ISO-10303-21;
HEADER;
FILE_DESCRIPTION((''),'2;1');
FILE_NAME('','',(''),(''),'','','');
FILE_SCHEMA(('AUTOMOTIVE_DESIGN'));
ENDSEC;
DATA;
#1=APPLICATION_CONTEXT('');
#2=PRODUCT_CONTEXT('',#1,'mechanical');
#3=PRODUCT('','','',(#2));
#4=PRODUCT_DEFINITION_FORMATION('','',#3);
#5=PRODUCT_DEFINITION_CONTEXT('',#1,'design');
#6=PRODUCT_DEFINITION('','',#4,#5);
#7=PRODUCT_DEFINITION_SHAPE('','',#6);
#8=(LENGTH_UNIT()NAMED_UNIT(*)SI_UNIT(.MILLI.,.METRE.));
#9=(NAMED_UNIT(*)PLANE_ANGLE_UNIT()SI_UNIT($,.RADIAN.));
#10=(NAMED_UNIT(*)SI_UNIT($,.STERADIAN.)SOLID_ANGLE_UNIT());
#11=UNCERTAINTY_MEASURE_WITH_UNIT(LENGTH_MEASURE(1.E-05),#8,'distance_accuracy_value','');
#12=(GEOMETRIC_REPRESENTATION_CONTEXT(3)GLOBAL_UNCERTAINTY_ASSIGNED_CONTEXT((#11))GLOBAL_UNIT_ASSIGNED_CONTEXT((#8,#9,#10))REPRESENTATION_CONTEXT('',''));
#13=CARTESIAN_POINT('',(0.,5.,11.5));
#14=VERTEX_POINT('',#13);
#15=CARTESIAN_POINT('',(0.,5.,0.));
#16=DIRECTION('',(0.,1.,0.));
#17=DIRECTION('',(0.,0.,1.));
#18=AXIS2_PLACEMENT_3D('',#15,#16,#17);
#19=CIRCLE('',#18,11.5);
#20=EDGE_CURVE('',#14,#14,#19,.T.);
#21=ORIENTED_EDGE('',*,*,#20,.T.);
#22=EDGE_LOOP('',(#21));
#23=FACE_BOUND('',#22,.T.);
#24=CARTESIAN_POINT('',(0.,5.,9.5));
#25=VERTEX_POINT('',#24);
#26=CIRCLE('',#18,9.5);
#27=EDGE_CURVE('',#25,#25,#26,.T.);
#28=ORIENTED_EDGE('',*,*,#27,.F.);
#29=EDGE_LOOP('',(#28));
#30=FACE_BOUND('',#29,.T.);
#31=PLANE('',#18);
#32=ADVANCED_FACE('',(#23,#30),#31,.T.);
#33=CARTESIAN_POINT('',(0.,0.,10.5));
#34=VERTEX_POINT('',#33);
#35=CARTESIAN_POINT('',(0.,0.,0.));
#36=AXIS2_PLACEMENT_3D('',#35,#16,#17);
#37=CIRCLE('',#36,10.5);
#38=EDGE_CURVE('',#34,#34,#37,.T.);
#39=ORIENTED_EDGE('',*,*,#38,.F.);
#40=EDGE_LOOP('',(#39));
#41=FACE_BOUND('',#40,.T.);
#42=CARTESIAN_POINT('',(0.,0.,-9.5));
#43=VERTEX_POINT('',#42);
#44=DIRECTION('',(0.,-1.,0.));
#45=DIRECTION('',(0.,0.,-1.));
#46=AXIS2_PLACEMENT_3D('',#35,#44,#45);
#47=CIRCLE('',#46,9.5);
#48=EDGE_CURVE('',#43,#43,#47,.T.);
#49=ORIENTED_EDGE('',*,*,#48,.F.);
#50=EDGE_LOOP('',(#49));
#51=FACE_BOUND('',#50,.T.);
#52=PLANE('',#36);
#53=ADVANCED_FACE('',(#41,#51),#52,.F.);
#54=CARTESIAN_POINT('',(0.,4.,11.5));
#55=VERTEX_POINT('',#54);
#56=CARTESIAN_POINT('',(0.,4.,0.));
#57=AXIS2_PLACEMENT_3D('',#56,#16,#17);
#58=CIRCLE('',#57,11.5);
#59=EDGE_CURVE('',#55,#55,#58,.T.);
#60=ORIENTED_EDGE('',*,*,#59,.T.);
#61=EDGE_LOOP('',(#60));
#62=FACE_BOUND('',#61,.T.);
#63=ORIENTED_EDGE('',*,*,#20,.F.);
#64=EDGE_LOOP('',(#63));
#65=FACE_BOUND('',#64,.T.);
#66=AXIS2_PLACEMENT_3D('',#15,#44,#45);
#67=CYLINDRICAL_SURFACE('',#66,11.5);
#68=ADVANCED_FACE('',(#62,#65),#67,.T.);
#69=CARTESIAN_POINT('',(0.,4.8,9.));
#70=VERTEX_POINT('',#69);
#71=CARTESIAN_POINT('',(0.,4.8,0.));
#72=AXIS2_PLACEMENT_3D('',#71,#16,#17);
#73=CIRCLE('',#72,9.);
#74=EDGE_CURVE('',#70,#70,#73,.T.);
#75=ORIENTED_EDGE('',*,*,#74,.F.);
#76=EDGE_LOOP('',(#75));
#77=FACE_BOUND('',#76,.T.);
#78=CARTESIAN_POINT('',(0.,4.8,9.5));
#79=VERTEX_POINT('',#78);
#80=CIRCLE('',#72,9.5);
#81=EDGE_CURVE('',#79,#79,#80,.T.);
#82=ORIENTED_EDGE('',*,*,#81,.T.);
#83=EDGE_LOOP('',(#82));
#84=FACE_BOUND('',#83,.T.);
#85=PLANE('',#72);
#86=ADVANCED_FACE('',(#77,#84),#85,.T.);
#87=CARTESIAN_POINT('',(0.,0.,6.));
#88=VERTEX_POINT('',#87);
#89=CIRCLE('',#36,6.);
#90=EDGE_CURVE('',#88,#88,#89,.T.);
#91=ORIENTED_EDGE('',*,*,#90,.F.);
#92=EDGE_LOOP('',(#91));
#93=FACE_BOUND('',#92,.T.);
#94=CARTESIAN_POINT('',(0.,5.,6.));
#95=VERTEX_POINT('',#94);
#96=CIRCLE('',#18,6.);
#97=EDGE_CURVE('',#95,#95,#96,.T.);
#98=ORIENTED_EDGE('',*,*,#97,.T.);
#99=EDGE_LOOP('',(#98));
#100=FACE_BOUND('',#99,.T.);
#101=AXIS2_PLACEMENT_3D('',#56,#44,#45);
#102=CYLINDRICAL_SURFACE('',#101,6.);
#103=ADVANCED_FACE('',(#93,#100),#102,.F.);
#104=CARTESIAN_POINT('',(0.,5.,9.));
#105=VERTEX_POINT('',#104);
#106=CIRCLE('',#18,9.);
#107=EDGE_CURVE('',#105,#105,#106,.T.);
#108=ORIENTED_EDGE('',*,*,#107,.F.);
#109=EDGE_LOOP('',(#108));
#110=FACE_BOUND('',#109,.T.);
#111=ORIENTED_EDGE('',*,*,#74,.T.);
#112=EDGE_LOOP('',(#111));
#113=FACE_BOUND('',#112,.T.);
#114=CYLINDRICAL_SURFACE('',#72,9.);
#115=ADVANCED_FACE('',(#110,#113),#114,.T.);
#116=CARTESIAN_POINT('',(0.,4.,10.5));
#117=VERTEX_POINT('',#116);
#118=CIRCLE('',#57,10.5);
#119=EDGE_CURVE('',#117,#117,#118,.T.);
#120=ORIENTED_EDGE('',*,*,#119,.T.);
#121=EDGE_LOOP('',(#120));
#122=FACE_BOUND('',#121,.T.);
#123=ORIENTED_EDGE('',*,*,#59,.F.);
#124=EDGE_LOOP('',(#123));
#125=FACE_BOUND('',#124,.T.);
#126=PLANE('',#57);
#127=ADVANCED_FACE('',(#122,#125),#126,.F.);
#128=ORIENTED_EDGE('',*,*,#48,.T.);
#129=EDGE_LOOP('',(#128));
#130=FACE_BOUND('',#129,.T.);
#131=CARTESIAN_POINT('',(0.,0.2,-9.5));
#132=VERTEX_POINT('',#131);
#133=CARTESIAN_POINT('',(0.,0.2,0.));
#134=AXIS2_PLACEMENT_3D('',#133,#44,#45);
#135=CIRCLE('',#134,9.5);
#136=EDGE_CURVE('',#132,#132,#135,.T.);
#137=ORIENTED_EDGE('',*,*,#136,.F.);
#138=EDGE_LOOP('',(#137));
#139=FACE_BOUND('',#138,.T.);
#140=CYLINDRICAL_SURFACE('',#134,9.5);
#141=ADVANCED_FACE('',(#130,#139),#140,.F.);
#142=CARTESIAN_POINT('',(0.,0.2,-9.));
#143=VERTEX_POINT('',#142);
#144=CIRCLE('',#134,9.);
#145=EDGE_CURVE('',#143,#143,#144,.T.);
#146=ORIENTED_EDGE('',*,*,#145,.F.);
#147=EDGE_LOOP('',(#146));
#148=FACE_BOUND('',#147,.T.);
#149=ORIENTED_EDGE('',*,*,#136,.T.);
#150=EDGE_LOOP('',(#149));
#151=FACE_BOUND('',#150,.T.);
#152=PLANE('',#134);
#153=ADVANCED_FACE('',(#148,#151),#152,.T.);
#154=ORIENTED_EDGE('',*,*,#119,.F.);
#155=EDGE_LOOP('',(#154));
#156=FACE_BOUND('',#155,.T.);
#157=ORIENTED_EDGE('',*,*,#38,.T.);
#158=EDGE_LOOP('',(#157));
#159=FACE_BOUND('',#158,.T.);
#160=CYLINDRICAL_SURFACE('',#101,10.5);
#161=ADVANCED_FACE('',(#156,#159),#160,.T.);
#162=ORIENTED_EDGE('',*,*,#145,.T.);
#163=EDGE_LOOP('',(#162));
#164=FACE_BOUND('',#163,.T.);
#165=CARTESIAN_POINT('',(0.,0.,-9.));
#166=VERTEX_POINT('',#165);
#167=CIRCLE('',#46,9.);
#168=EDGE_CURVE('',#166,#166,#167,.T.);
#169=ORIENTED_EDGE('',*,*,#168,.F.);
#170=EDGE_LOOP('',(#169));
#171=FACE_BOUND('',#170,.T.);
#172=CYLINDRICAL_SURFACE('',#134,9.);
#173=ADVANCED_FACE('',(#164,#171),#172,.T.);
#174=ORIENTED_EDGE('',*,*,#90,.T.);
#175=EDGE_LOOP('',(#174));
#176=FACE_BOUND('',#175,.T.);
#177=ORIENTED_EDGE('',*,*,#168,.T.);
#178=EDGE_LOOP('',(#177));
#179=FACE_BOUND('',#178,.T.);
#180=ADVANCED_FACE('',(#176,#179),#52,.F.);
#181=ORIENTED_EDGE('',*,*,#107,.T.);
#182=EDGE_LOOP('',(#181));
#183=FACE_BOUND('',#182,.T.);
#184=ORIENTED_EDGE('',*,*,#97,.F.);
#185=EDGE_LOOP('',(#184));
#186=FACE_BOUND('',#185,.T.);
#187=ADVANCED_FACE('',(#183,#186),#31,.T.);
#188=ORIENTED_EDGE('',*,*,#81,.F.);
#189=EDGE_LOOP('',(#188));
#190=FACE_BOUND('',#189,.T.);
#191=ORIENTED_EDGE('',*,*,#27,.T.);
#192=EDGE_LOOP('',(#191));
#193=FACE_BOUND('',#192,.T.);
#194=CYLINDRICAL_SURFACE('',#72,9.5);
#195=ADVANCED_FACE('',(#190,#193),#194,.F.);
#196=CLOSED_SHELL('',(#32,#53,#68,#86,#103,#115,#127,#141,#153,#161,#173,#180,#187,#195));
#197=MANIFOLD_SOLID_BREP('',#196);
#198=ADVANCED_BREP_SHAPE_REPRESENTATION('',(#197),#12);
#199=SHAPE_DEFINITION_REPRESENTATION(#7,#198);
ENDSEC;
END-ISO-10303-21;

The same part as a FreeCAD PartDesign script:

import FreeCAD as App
import Part
import Sketcher
from FreeCAD import Vector
Q = App.Units.Quantity

doc = App.newDocument("Part")
body = doc.addObject("PartDesign::Body", "Body")

sketch1 = body.newObject("Sketcher::SketchObject", "Sketch")
sketch1.AttachmentSupport = (doc.getObject("XZ_Plane"), [""])
sketch1.MapMode = "FlatFace"
sketch1.addGeometry([
    Part.Circle(Vector(0, 0, 0), Vector(0, 0, 1), 10),
    Part.Circle(Vector(0, 0, 0), Vector(0, 0, 1), 6),
], False)
sketch1.addConstraint([
    Sketcher.Constraint("Coincident", 0, 3, -1, 1),
    Sketcher.Constraint("Coincident", 1, 3, -1, 1),
    Sketcher.Constraint("Diameter", 0, Q("21 mm")),
    Sketcher.Constraint("Diameter", 1, Q("12 mm")),
])
pad1 = body.newObject("PartDesign::Pad", "Pad")
pad1.Profile = sketch1
pad1.Length = 4
pad1.Reversed = True

sketch2 = body.newObject("Sketcher::SketchObject", "Sketch001")
sketch2.AttachmentSupport = (doc.getObject("XZ_Plane"), [""])
sketch2.MapMode = "FlatFace"
sketch2.AttachmentOffset = App.Placement(Vector(0, 0, -4), App.Rotation())
sketch2.addGeometry([
    Part.Circle(Vector(0, 0, 0), Vector(0, 0, 1), 12),
    Part.Circle(Vector(0, 0, 0), Vector(0, 0, 1), 6),
], False)
sketch2.addConstraint([
    Sketcher.Constraint("Coincident", 0, 3, -1, 1),
    Sketcher.Constraint("Coincident", 1, 3, -1, 1),
    Sketcher.Constraint("Diameter", 0, Q("23 mm")),
    Sketcher.Constraint("Diameter", 1, Q("12 mm")),
])
pad2 = body.newObject("PartDesign::Pad", "Pad001")
pad2.Profile = sketch2
pad2.Length = 1
pad2.Reversed = True

sketch3 = body.newObject("Sketcher::SketchObject", "Sketch002")
sketch3.AttachmentSupport = (doc.getObject("XZ_Plane"), [""])
sketch3.MapMode = "FlatFace"
sketch3.addGeometry([
    Part.Circle(Vector(0, 0, 0), Vector(0, 0, 1), 10),
    Part.Circle(Vector(0, 0, 0), Vector(0, 0, 1), 9),
], False)
sketch3.addConstraint([
    Sketcher.Constraint("Coincident", 0, 3, -1, 1),
    Sketcher.Constraint("Coincident", 1, 3, -1, 1),
    Sketcher.Constraint("Diameter", 0, Q("19 mm")),
    Sketcher.Constraint("Diameter", 1, Q("18 mm")),
])
pocket1 = body.newObject("PartDesign::Pocket", "Pocket")
pocket1.Profile = sketch3
pocket1.Length = 0.2

sketch4 = body.newObject("Sketcher::SketchObject", "Sketch003")
sketch4.AttachmentSupport = (doc.getObject("XZ_Plane"), [""])
sketch4.MapMode = "FlatFace"
sketch4.AttachmentOffset = App.Placement(Vector(0, 0, -4.8), App.Rotation())
sketch4.addGeometry([
    Part.Circle(Vector(0, 0, 0), Vector(0, 0, 1), 10),
    Part.Circle(Vector(0, 0, 0), Vector(0, 0, 1), 9),
], False)
sketch4.addConstraint([
    Sketcher.Constraint("Coincident", 0, 3, -1, 1),
    Sketcher.Constraint("Coincident", 1, 3, -1, 1),
    Sketcher.Constraint("Diameter", 0, Q("19 mm")),
    Sketcher.Constraint("Diameter", 1, Q("18 mm")),
])
pocket2 = body.newObject("PartDesign::Pocket", "Pocket001")
pocket2.Profile = sketch4
pocket2.Length = 0.2

doc.recompute()
